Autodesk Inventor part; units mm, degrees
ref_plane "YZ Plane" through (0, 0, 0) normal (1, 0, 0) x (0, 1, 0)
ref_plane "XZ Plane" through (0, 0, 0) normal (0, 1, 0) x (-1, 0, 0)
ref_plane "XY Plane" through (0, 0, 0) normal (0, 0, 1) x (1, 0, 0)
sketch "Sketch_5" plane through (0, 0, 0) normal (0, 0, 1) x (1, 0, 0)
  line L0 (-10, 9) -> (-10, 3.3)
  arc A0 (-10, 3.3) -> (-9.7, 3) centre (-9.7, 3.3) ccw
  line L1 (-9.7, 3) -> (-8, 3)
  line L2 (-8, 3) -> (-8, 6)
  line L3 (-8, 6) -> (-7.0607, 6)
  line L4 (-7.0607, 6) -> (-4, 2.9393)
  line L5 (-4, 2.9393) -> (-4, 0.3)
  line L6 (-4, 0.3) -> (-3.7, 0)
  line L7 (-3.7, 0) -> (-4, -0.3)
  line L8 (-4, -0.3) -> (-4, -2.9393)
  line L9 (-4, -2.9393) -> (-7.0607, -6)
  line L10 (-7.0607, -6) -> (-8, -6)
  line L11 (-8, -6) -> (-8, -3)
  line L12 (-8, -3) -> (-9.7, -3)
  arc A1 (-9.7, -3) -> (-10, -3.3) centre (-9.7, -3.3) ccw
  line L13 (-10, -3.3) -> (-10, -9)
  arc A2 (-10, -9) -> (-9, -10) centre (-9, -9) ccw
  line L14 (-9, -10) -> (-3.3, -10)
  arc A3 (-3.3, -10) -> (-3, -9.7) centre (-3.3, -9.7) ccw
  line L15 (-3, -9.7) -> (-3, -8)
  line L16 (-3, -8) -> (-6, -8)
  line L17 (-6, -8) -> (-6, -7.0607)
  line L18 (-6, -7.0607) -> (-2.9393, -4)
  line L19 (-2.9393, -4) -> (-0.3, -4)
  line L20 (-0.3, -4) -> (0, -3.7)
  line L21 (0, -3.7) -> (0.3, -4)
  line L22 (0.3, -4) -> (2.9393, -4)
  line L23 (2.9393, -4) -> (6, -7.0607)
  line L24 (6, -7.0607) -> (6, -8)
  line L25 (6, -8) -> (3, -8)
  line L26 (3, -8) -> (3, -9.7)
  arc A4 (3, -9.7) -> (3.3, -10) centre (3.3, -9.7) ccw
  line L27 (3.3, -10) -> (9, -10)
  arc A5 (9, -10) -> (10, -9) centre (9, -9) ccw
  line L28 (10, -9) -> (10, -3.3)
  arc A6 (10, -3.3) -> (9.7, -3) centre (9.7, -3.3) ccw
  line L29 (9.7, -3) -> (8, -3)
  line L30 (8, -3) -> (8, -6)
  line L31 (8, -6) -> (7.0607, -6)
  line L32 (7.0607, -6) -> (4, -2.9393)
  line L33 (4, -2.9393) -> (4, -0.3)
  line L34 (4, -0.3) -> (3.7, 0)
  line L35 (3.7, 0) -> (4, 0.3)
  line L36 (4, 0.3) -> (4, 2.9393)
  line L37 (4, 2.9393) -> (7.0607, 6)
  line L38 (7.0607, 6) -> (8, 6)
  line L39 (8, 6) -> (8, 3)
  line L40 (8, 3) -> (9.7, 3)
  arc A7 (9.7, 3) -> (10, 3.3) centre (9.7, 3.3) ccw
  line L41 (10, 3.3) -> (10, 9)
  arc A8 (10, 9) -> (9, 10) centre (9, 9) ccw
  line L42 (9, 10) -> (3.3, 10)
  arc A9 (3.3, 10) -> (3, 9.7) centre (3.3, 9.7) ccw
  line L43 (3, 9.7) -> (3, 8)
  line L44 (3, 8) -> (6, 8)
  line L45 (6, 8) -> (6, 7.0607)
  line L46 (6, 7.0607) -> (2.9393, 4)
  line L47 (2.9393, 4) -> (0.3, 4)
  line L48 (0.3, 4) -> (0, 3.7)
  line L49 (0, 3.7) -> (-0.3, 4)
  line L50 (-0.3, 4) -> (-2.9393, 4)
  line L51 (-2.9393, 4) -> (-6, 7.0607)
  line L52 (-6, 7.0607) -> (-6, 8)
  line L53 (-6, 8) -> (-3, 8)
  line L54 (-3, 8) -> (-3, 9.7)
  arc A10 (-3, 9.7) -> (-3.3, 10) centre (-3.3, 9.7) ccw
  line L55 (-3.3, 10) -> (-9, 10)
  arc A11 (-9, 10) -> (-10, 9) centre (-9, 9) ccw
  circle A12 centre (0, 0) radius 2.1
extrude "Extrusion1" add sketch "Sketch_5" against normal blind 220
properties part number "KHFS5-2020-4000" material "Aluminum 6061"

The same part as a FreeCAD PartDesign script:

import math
import FreeCAD as App
import Part
import Sketcher
from FreeCAD import Vector

doc = App.newDocument("Part")
body = doc.addObject("PartDesign::Body", "Body")

sketch1 = body.newObject("Sketcher::SketchObject", "Sketch")
sketch1.AttachmentSupport = (doc.getObject("XY_Plane"), [""])
sketch1.MapMode = "FlatFace"
sketch1.addGeometry([
    Part.ArcOfCircle(Part.Circle(Vector(-9, 9, 0), Vector(0, 0, 1), 1), math.radians(90), math.radians(180)),
    Part.LineSegment(Vector(-10, 9, 0), Vector(-10, 3.3, 0)),
    Part.ArcOfCircle(Part.Circle(Vector(-9.7, 3.3, 0), Vector(0, 0, 1), 0.3), math.radians(180), math.radians(270)),
    Part.LineSegment(Vector(-9.7, 3, 0), Vector(-8, 3, 0)),
    Part.LineSegment(Vector(-8, 3, 0), Vector(-8, 6, 0)),
    Part.LineSegment(Vector(-8, 6, 0), Vector(-7.06, 6, 0)),
    Part.LineSegment(Vector(-7.06, 6, 0), Vector(-4, 2.94, 0)),
    Part.LineSegment(Vector(-4, 2.94, 0), Vector(-4, 0.3, 0)),
    Part.LineSegment(Vector(-4, 0.3, 0), Vector(-3.7, 0, 0)),
    Part.LineSegment(Vector(-3.7, 0, 0), Vector(-4, -0.3, 0)),
    Part.LineSegment(Vector(-4, -0.3, 0), Vector(-4, -2.94, 0)),
    Part.LineSegment(Vector(-4, -2.94, 0), Vector(-7.06, -6, 0)),
    Part.LineSegment(Vector(-7.06, -6, 0), Vector(-8, -6, 0)),
    Part.LineSegment(Vector(-8, -6, 0), Vector(-8, -3, 0)),
    Part.LineSegment(Vector(-8, -3, 0), Vector(-9.7, -3, 0)),
    Part.ArcOfCircle(Part.Circle(Vector(-9.7, -3.3, 0), Vector(0, 0, 1), 0.3), math.radians(90), math.radians(180)),
    Part.LineSegment(Vector(-10, -3.3, 0), Vector(-10, -9, 0)),
    Part.ArcOfCircle(Part.Circle(Vector(-9, -9, 0), Vector(0, 0, 1), 1), math.radians(180), math.radians(270)),
    Part.LineSegment(Vector(-9, -10, 0), Vector(-3.3, -10, 0)),
    Part.ArcOfCircle(Part.Circle(Vector(-3.3, -9.7, 0), Vector(0, 0, 1), 0.3), math.radians(-90), math.radians(0)),
    Part.LineSegment(Vector(-3, -9.7, 0), Vector(-3, -8, 0)),
    Part.LineSegment(Vector(-3, -8, 0), Vector(-6, -8, 0)),
    Part.LineSegment(Vector(-6, -8, 0), Vector(-6, -7.06, 0)),
    Part.LineSegment(Vector(-6, -7.06, 0), Vector(-2.94, -4, 0)),
    Part.LineSegment(Vector(-2.94, -4, 0), Vector(-0.3, -4, 0)),
    Part.LineSegment(Vector(-0.3, -4, 0), Vector(0, -3.7, 0)),
    Part.LineSegment(Vector(0, -3.7, 0), Vector(0.3, -4, 0)),
    Part.LineSegment(Vector(0.3, -4, 0), Vector(2.94, -4, 0)),
    Part.LineSegment(Vector(2.94, -4, 0), Vector(6, -7.06, 0)),
    Part.LineSegment(Vector(6, -7.06, 0), Vector(6, -8, 0)),
    Part.LineSegment(Vector(6, -8, 0), Vector(3, -8, 0)),
    Part.LineSegment(Vector(3, -8, 0), Vector(3, -9.7, 0)),
    Part.ArcOfCircle(Part.Circle(Vector(3.3, -9.7, 0), Vector(0, 0, 1), 0.3), math.radians(180), math.radians(270)),
    Part.LineSegment(Vector(3.3, -10, 0), Vector(9, -10, 0)),
    Part.ArcOfCircle(Part.Circle(Vector(9, -9, 0), Vector(0, 0, 1), 1), math.radians(-90), math.radians(0)),
    Part.LineSegment(Vector(10, -9, 0), Vector(10, -3.3, 0)),
    Part.ArcOfCircle(Part.Circle(Vector(9.7, -3.3, 0), Vector(0, 0, 1), 0.3), math.radians(0), math.radians(90)),
    Part.LineSegment(Vector(9.7, -3, 0), Vector(8, -3, 0)),
    Part.LineSegment(Vector(8, -3, 0), Vector(8, -6, 0)),
    Part.LineSegment(Vector(8, -6, 0), Vector(7.06, -6, 0)),
    Part.LineSegment(Vector(7.06, -6, 0), Vector(4, -2.94, 0)),
    Part.LineSegment(Vector(4, -2.94, 0), Vector(4, -0.3, 0)),
    Part.LineSegment(Vector(4, -0.3, 0), Vector(3.7, 0, 0)),
    Part.LineSegment(Vector(3.7, 0, 0), Vector(4, 0.3, 0)),
    Part.LineSegment(Vector(4, 0.3, 0), Vector(4, 2.94, 0)),
    Part.LineSegment(Vector(4, 2.94, 0), Vector(7.06, 6, 0)),
    Part.LineSegment(Vector(7.06, 6, 0), Vector(8, 6, 0)),
    Part.LineSegment(Vector(8, 6, 0), Vector(8, 3, 0)),
    Part.LineSegment(Vector(8, 3, 0), Vector(9.7, 3, 0)),
    Part.ArcOfCircle(Part.Circle(Vector(9.7, 3.3, 0), Vector(0, 0, 1), 0.3), math.radians(-90), math.radians(0)),
    Part.LineSegment(Vector(10, 3.3, 0), Vector(10, 9, 0)),
    Part.ArcOfCircle(Part.Circle(Vector(9, 9, 0), Vector(0, 0, 1), 1), math.radians(0), math.radians(90)),
    Part.LineSegment(Vector(9, 10, 0), Vector(3.3, 10, 0)),
    Part.ArcOfCircle(Part.Circle(Vector(3.3, 9.7, 0), Vector(0, 0, 1), 0.3), math.radians(90), math.radians(180)),
    Part.LineSegment(Vector(3, 9.7, 0), Vector(3, 8, 0)),
    Part.LineSegment(Vector(3, 8, 0), Vector(6, 8, 0)),
    Part.LineSegment(Vector(6, 8, 0), Vector(6, 7.06, 0)),
    Part.LineSegment(Vector(6, 7.06, 0), Vector(2.94, 4, 0)),
    Part.LineSegment(Vector(2.94, 4, 0), Vector(0.3, 4, 0)),
    Part.LineSegment(Vector(0.3, 4, 0), Vector(0, 3.7, 0)),
    Part.LineSegment(Vector(0, 3.7, 0), Vector(-0.3, 4, 0)),
    Part.LineSegment(Vector(-0.3, 4, 0), Vector(-2.94, 4, 0)),
    Part.LineSegment(Vector(-2.94, 4, 0), Vector(-6, 7.06, 0)),
    Part.LineSegment(Vector(-6, 7.06, 0), Vector(-6, 8, 0)),
    Part.LineSegment(Vector(-6, 8, 0), Vector(-3, 8, 0)),
    Part.LineSegment(Vector(-3, 8, 0), Vector(-3, 9.7, 0)),
    Part.ArcOfCircle(Part.Circle(Vector(-3.3, 9.7, 0), Vector(0, 0, 1), 0.3), math.radians(0), math.radians(90)),
    Part.LineSegment(Vector(-3.3, 10, 0), Vector(-9, 10, 0)),
    Part.Circle(Vector(0, 0, 0), Vector(0, 0, 1), 2.1),
], False)
sketch1.addConstraint([
    Sketcher.Constraint("Tangent", 0, 2, 1, 1),
    Sketcher.Constraint("Tangent", 1, 2, 2, 1),
    Sketcher.Constraint("Tangent", 2, 2, 3, 1),
    Sketcher.Constraint("Coincident", 3, 2, 4, 1),
    Sketcher.Constraint("Coincident", 4, 2, 5, 1),
    Sketcher.Constraint("Coincident", 5, 2, 6, 1),
    Sketcher.Constraint("Coincident", 6, 2, 7, 1),
    Sketcher.Constraint("Coincident", 7, 2, 8, 1),
    Sketcher.Constraint("Coincident", 8, 2, 9, 1),
    Sketcher.Constraint("Coincident", 9, 2, 10, 1),
    Sketcher.Constraint("Coincident", 10, 2, 11, 1),
    Sketcher.Constraint("Coincident", 11, 2, 12, 1),
    Sketcher.Constraint("Coincident", 12, 2, 13, 1),
    Sketcher.Constraint("Coincident", 13, 2, 14, 1),
    Sketcher.Constraint("Tangent", 14, 2, 15, 1),
    Sketcher.Constraint("Tangent", 15, 2, 16, 1),
    Sketcher.Constraint("Tangent", 16, 2, 17, 1),
    Sketcher.Constraint("Tangent", 17, 2, 18, 1),
    Sketcher.Constraint("Tangent", 18, 2, 19, 1),
    Sketcher.Constraint("Tangent", 19, 2, 20, 1),
    Sketcher.Constraint("Coincident", 20, 2, 21, 1),
    Sketcher.Constraint("Coincident", 21, 2, 22, 1),
    Sketcher.Constraint("Coincident", 22, 2, 23, 1),
    Sketcher.Constraint("Coincident", 23, 2, 24, 1),
    Sketcher.Constraint("Coincident", 24, 2, 25, 1),
    Sketcher.Constraint("Coincident", 25, 2, 26, 1),
    Sketcher.Constraint("Coincident", 26, 2, 27, 1),
    Sketcher.Constraint("Coincident", 27, 2, 28, 1),
    Sketcher.Constraint("Coincident", 28, 2, 29, 1),
    Sketcher.Constraint("Coincident", 29, 2, 30, 1),
    Sketcher.Constraint("Coincident", 30, 2, 31, 1),
    Sketcher.Constraint("Tangent", 31, 2, 32, 1),
    Sketcher.Constraint("Tangent", 32, 2, 33, 1),
    Sketcher.Constraint("Tangent", 33, 2, 34, 1),
    Sketcher.Constraint("Tangent", 34, 2, 35, 1),
    Sketcher.Constraint("Tangent", 35, 2, 36, 1),
    Sketcher.Constraint("Tangent", 36, 2, 37, 1),
    Sketcher.Constraint("Coincident", 37, 2, 38, 1),
    Sketcher.Constraint("Coincident", 38, 2, 39, 1),
    Sketcher.Constraint("Coincident", 39, 2, 40, 1),
    Sketcher.Constraint("Coincident", 40, 2, 41, 1),
    Sketcher.Constraint("Coincident", 41, 2, 42, 1),
    Sketcher.Constraint("Coincident", 42, 2, 43, 1),
    Sketcher.Constraint("Coincident", 43, 2, 44, 1),
    Sketcher.Constraint("Coincident", 44, 2, 45, 1),
    Sketcher.Constraint("Coincident", 45, 2, 46, 1),
    Sketcher.Constraint("Coincident", 46, 2, 47, 1),
    Sketcher.Constraint("Coincident", 47, 2, 48, 1),
    Sketcher.Constraint("Tangent", 48, 2, 49, 1),
    Sketcher.Constraint("Tangent", 49, 2, 50, 1),
    Sketcher.Constraint("Tangent", 50, 2, 51, 1),
    Sketcher.Constraint("Tangent", 51, 2, 52, 1),
    Sketcher.Constraint("Tangent", 52, 2, 53, 1),
    Sketcher.Constraint("Tangent", 53, 2, 54, 1),
    Sketcher.Constraint("Coincident", 54, 2, 55, 1),
    Sketcher.Constraint("Coincident", 55, 2, 56, 1),
    Sketcher.Constraint("Coincident", 56, 2, 57, 1),
    Sketcher.Constraint("Coincident", 57, 2, 58, 1),
    Sketcher.Constraint("Coincident", 58, 2, 59, 1),
    Sketcher.Constraint("Coincident", 59, 2, 60, 1),
    Sketcher.Constraint("Coincident", 60, 2, 61, 1),
    Sketcher.Constraint("Coincident", 61, 2, 62, 1),
    Sketcher.Constraint("Coincident", 62, 2, 63, 1),
    Sketcher.Constraint("Coincident", 63, 2, 64, 1),
    Sketcher.Constraint("Coincident", 64, 2, 65, 1),
    Sketcher.Constraint("Tangent", 65, 2, 66, 1),
    Sketcher.Constraint("Tangent", 66, 2, 67, 1),
    Sketcher.Constraint("Tangent", 67, 2, 0, 1),
    Sketcher.Constraint("Vertical", 1),
    Sketcher.Constraint("Horizontal", 3),
    Sketcher.Constraint("Vertical", 4),
    Sketcher.Constraint("Horizontal", 5),
    Sketcher.Constraint("Vertical", 7),
    Sketcher.Constraint("Vertical", 10),
    Sketcher.Constraint("Horizontal", 12),
    Sketcher.Constraint("Vertical", 13),
    Sketcher.Constraint("Horizontal", 14),
    Sketcher.Constraint("Vertical", 16),
    Sketcher.Constraint("Horizontal", 18),
    Sketcher.Constraint("Vertical", 20),
    Sketcher.Constraint("Horizontal", 21),
    Sketcher.Constraint("Vertical", 22),
    Sketcher.Constraint("Horizontal", 24),
    Sketcher.Constraint("Horizontal", 27),
    Sketcher.Constraint("Vertical", 29),
    Sketcher.Constraint("Horizontal", 30),
    Sketcher.Constraint("Vertical", 31),
    Sketcher.Constraint("Horizontal", 33),
    Sketcher.Constraint("Vertical", 35),
    Sketcher.Constraint("Horizontal", 37),
    Sketcher.Constraint("Vertical", 38),
    Sketcher.Constraint("Horizontal", 39),
    Sketcher.Constraint("Vertical", 41),
    Sketcher.Constraint("Vertical", 44),
    Sketcher.Constraint("Horizontal", 46),
    Sketcher.Constraint("Vertical", 47),
    Sketcher.Constraint("Horizontal", 48),
    Sketcher.Constraint("Vertical", 50),
    Sketcher.Constraint("Horizontal", 52),
    Sketcher.Constraint("Vertical", 54),
    Sketcher.Constraint("Horizontal", 55),
    Sketcher.Constraint("Vertical", 56),
    Sketcher.Constraint("Horizontal", 58),
    Sketcher.Constraint("Horizontal", 61),
    Sketcher.Constraint("Vertical", 63),
    Sketcher.Constraint("Horizontal", 64),
    Sketcher.Constraint("Vertical", 65),
    Sketcher.Constraint("Horizontal", 67),
    Sketcher.Constraint("Coincident", 68, 3, -1, 1),
    Sketcher.Constraint("Equal", 2, 15),
    Sketcher.Constraint("Equal", 0, 17),
    Sketcher.Constraint("Equal", 15, 19),
    Sketcher.Constraint("Equal", 19, 32),
    Sketcher.Constraint("Equal", 17, 34),
    Sketcher.Constraint("Equal", 32, 36),
    Sketcher.Constraint("Equal", 36, 49),
    Sketcher.Constraint("Equal", 34, 51),
    Sketcher.Constraint("Equal", 49, 53),
    Sketcher.Constraint("Equal", 53, 66),
    Sketcher.Constraint("Symmetric", 0, 3, 34, 3, -1, 1),
    Sketcher.Constraint("Symmetric", 15, 3, 49, 3, -1, 1),
    Sketcher.Constraint("Symmetric", 19, 3, 53, 3, -1, 1),
    Sketcher.Constraint("Symmetric", 3, 2, 37, 2, -1, 1),
    Sketcher.Constraint("Symmetric", 5, 2, 39, 2, -1, 1),
    Sketcher.Constraint("Symmetric", 6, 2, 40, 2, -1, 1),
    Sketcher.Constraint("Symmetric", 8, 2, 42, 2, -1, 1),
    Sketcher.Constraint("Symmetric", 9, 2, 43, 2, -1, 1),
    Sketcher.Constraint("Symmetric", 11, 2, 45, 2, -1, 1),
    Sketcher.Constraint("Symmetric", 21, 2, 55, 2, -1, 1),
    Sketcher.Constraint("Symmetric", 23, 2, 57, 2, -1, 1),
    Sketcher.Constraint("Symmetric", 25, 2, 59, 2, -1, 1),
    Sketcher.Constraint("Symmetric", 26, 2, 60, 2, -1, 1),
    Sketcher.Constraint("Symmetric", 28, 2, 62, 2, -1, 1),
    Sketcher.Constraint("Symmetric", 30, 2, 64, 2, -1, 1),
    Sketcher.Constraint("Symmetric", 19, 3, 32, 3, -2),
    Sketcher.Constraint("Symmetric", 15, 3, 36, 3, -2),
    Sketcher.Constraint("Symmetric", 24, 2, 26, 2, -2),
    Sketcher.Constraint("Symmetric", 22, 2, 28, 2, -2),
    Sketcher.Constraint("Symmetric", 12, 2, 38, 2, -2),
    Sketcher.Constraint("Symmetric", 10, 2, 40, 2, -2),
    Sketcher.Constraint("PointOnObject", 8, 2, -1),
    Sketcher.Constraint("PointOnObject", 25, 2, -2),
    Sketcher.Constraint("Parallel", 6, 8),
    Sketcher.Constraint("Perpendicular", 8, 9),
    Sketcher.Constraint("Parallel", 9, 11),
    Sketcher.Constraint("Parallel", 11, 23),
    Sketcher.Constraint("Parallel", 23, 25),
    Sketcher.Constraint("Perpendicular", 25, 26),
    Sketcher.Constraint("Parallel", 26, 28),
    Sketcher.Constraint("Parallel", 40, 42),
    Sketcher.Constraint("Parallel", 43, 45),
    Sketcher.Constraint("Parallel", 45, 57),
    Sketcher.Constraint("Parallel", 57, 59),
    Sketcher.Constraint("Parallel", 60, 62),
    Sketcher.Constraint("Horizontal", 21, 2, 29, 2),
    Sketcher.Constraint("Vertical", 38, 2, 46, 2),
    Sketcher.Constraint("Equal", 67, 1),
    Sketcher.Constraint("Equal", 64, 4),
    Sketcher.Constraint("Equal", 61, 7),
    Sketcher.Constraint("Equal", 48, 20),
    Sketcher.Constraint("Equal", 46, 22),
    Sketcher.Constraint("Equal", 11, 23),
    Sketcher.Constraint("Equal", 9, 25),
    Sketcher.Constraint("Radius", 0, 1.0),
    Sketcher.Constraint("Diameter", 68, 4.2),
    Sketcher.Constraint("Radius", 2, 0.3),
    Sketcher.Constraint("DistanceX", 21, 2, 21, 1, 3.0),
    Sketcher.Constraint("DistanceX", 3, 1, 3, 2, 1.7),
    Sketcher.Constraint("DistanceX", 18, 1, 18, 2, 5.7),
    Sketcher.Constraint("DistanceX", 0, 3, -1, 1, 9.0),
    Sketcher.Constraint("DistanceX", 6, 2, -1, 1, 4.0),
    Sketcher.Constraint("DistanceY", -1, 1, 7, 2, 0.3),
    Sketcher.Constraint("DistanceX", 5, 1, 5, 2, 0.9393),
])
pad1 = body.newObject("PartDesign::Pad", "Pad")
pad1.Profile = sketch1
pad1.Length = 220
pad1.Reversed = True

doc.recompute()
